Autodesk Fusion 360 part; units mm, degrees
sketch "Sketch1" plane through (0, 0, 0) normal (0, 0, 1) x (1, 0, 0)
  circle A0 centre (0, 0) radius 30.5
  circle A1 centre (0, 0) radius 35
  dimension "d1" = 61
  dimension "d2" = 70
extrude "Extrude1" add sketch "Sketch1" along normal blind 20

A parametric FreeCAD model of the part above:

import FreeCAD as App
import Part
import Sketcher
Q = App.Units.Quantity

doc = App.newDocument("Part")
body = doc.addObject("PartDesign::Body", "Body")

# Sketch on XY plane
sketch1 = body.newObject("Sketcher::SketchObject", "Sketch")
sketch1.AttachmentSupport = (doc.getObject("XY_Plane"), [""])
sketch1.MapMode = "FlatFace"
sketch1.addGeometry(Part.Circle(App.Vector(0, 0, 0), App.Vector(0, 0, 1), 35), False)
sketch1.addGeometry(Part.Circle(App.Vector(0, 0, 0), App.Vector(0, 0, 1), 30), False)
sketch1.addConstraint(Sketcher.Constraint("Coincident", 0, 3, -1, 1))
sketch1.addConstraint(Sketcher.Constraint("Coincident", 1, 3, -1, 1))
sketch1.addConstraint(Sketcher.Constraint("Diameter", 0, Q("70 mm")))
sketch1.addConstraint(Sketcher.Constraint("Diameter", 1, Q("61 mm")))
pad1 = body.newObject("PartDesign::Pad", "Pad")
pad1.Profile = sketch1
pad1.Length = 20

doc.recompute()
